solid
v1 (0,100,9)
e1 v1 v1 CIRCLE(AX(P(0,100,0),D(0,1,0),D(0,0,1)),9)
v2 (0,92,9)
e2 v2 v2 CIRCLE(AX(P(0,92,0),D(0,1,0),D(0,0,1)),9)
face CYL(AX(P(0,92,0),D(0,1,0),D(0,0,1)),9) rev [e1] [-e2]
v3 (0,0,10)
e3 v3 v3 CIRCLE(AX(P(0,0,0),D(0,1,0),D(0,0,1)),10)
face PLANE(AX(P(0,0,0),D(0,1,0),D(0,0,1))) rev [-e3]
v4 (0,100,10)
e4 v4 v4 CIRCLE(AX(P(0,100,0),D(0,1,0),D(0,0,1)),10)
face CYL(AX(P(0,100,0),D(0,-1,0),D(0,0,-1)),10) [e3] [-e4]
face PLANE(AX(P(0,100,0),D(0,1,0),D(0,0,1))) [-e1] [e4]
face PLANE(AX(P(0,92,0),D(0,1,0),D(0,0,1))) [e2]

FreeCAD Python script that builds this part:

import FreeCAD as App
import Part
import Sketcher
from FreeCAD import Vector

doc = App.newDocument("Part")
body = doc.addObject("PartDesign::Body", "Body")

sketch1 = doc.addObject("Sketcher::SketchObject", "Sketch")
body.addObject(sketch1)
sketch1.AttachmentSupport = (doc.XZ_Plane, [""])
sketch1.MapMode = "FlatFace"
sketch1.addGeometry(Part.Circle(Vector(0, 0, 0), Vector(0, 0, 1), 10), False)
sketch1.addConstraint([
    Sketcher.Constraint("Coincident", 0, 3, -1, 1),
    Sketcher.Constraint("Diameter", 0, 20.0),
])
pad1 = doc.addObject("PartDesign::Pad", "Pad")
body.addObject(pad1)
pad1.Profile = sketch1
pad1.Length = 100
pad1.Reversed = True

sketch2 = doc.addObject("Sketcher::SketchObject", "Sketch001")
body.addObject(sketch2)
sketch2.AttachmentSupport = (doc.XZ_Plane, [""])
sketch2.MapMode = "FlatFace"
sketch2.AttachmentOffset = App.Placement(Vector(0, 0, -100), App.Rotation())
sketch2.addGeometry(Part.Circle(Vector(0, 0, 0), Vector(0, 0, 1), 9), False)
sketch2.addConstraint([
    Sketcher.Constraint("Coincident", 0, 3, -1, 1),
    Sketcher.Constraint("Diameter", 0, 18.0),
])
pocket1 = doc.addObject("PartDesign::Pocket", "Pocket")
body.addObject(pocket1)
pocket1.Profile = sketch2
pocket1.Length = 8
pocket1.Reversed = True

doc.recompute()
